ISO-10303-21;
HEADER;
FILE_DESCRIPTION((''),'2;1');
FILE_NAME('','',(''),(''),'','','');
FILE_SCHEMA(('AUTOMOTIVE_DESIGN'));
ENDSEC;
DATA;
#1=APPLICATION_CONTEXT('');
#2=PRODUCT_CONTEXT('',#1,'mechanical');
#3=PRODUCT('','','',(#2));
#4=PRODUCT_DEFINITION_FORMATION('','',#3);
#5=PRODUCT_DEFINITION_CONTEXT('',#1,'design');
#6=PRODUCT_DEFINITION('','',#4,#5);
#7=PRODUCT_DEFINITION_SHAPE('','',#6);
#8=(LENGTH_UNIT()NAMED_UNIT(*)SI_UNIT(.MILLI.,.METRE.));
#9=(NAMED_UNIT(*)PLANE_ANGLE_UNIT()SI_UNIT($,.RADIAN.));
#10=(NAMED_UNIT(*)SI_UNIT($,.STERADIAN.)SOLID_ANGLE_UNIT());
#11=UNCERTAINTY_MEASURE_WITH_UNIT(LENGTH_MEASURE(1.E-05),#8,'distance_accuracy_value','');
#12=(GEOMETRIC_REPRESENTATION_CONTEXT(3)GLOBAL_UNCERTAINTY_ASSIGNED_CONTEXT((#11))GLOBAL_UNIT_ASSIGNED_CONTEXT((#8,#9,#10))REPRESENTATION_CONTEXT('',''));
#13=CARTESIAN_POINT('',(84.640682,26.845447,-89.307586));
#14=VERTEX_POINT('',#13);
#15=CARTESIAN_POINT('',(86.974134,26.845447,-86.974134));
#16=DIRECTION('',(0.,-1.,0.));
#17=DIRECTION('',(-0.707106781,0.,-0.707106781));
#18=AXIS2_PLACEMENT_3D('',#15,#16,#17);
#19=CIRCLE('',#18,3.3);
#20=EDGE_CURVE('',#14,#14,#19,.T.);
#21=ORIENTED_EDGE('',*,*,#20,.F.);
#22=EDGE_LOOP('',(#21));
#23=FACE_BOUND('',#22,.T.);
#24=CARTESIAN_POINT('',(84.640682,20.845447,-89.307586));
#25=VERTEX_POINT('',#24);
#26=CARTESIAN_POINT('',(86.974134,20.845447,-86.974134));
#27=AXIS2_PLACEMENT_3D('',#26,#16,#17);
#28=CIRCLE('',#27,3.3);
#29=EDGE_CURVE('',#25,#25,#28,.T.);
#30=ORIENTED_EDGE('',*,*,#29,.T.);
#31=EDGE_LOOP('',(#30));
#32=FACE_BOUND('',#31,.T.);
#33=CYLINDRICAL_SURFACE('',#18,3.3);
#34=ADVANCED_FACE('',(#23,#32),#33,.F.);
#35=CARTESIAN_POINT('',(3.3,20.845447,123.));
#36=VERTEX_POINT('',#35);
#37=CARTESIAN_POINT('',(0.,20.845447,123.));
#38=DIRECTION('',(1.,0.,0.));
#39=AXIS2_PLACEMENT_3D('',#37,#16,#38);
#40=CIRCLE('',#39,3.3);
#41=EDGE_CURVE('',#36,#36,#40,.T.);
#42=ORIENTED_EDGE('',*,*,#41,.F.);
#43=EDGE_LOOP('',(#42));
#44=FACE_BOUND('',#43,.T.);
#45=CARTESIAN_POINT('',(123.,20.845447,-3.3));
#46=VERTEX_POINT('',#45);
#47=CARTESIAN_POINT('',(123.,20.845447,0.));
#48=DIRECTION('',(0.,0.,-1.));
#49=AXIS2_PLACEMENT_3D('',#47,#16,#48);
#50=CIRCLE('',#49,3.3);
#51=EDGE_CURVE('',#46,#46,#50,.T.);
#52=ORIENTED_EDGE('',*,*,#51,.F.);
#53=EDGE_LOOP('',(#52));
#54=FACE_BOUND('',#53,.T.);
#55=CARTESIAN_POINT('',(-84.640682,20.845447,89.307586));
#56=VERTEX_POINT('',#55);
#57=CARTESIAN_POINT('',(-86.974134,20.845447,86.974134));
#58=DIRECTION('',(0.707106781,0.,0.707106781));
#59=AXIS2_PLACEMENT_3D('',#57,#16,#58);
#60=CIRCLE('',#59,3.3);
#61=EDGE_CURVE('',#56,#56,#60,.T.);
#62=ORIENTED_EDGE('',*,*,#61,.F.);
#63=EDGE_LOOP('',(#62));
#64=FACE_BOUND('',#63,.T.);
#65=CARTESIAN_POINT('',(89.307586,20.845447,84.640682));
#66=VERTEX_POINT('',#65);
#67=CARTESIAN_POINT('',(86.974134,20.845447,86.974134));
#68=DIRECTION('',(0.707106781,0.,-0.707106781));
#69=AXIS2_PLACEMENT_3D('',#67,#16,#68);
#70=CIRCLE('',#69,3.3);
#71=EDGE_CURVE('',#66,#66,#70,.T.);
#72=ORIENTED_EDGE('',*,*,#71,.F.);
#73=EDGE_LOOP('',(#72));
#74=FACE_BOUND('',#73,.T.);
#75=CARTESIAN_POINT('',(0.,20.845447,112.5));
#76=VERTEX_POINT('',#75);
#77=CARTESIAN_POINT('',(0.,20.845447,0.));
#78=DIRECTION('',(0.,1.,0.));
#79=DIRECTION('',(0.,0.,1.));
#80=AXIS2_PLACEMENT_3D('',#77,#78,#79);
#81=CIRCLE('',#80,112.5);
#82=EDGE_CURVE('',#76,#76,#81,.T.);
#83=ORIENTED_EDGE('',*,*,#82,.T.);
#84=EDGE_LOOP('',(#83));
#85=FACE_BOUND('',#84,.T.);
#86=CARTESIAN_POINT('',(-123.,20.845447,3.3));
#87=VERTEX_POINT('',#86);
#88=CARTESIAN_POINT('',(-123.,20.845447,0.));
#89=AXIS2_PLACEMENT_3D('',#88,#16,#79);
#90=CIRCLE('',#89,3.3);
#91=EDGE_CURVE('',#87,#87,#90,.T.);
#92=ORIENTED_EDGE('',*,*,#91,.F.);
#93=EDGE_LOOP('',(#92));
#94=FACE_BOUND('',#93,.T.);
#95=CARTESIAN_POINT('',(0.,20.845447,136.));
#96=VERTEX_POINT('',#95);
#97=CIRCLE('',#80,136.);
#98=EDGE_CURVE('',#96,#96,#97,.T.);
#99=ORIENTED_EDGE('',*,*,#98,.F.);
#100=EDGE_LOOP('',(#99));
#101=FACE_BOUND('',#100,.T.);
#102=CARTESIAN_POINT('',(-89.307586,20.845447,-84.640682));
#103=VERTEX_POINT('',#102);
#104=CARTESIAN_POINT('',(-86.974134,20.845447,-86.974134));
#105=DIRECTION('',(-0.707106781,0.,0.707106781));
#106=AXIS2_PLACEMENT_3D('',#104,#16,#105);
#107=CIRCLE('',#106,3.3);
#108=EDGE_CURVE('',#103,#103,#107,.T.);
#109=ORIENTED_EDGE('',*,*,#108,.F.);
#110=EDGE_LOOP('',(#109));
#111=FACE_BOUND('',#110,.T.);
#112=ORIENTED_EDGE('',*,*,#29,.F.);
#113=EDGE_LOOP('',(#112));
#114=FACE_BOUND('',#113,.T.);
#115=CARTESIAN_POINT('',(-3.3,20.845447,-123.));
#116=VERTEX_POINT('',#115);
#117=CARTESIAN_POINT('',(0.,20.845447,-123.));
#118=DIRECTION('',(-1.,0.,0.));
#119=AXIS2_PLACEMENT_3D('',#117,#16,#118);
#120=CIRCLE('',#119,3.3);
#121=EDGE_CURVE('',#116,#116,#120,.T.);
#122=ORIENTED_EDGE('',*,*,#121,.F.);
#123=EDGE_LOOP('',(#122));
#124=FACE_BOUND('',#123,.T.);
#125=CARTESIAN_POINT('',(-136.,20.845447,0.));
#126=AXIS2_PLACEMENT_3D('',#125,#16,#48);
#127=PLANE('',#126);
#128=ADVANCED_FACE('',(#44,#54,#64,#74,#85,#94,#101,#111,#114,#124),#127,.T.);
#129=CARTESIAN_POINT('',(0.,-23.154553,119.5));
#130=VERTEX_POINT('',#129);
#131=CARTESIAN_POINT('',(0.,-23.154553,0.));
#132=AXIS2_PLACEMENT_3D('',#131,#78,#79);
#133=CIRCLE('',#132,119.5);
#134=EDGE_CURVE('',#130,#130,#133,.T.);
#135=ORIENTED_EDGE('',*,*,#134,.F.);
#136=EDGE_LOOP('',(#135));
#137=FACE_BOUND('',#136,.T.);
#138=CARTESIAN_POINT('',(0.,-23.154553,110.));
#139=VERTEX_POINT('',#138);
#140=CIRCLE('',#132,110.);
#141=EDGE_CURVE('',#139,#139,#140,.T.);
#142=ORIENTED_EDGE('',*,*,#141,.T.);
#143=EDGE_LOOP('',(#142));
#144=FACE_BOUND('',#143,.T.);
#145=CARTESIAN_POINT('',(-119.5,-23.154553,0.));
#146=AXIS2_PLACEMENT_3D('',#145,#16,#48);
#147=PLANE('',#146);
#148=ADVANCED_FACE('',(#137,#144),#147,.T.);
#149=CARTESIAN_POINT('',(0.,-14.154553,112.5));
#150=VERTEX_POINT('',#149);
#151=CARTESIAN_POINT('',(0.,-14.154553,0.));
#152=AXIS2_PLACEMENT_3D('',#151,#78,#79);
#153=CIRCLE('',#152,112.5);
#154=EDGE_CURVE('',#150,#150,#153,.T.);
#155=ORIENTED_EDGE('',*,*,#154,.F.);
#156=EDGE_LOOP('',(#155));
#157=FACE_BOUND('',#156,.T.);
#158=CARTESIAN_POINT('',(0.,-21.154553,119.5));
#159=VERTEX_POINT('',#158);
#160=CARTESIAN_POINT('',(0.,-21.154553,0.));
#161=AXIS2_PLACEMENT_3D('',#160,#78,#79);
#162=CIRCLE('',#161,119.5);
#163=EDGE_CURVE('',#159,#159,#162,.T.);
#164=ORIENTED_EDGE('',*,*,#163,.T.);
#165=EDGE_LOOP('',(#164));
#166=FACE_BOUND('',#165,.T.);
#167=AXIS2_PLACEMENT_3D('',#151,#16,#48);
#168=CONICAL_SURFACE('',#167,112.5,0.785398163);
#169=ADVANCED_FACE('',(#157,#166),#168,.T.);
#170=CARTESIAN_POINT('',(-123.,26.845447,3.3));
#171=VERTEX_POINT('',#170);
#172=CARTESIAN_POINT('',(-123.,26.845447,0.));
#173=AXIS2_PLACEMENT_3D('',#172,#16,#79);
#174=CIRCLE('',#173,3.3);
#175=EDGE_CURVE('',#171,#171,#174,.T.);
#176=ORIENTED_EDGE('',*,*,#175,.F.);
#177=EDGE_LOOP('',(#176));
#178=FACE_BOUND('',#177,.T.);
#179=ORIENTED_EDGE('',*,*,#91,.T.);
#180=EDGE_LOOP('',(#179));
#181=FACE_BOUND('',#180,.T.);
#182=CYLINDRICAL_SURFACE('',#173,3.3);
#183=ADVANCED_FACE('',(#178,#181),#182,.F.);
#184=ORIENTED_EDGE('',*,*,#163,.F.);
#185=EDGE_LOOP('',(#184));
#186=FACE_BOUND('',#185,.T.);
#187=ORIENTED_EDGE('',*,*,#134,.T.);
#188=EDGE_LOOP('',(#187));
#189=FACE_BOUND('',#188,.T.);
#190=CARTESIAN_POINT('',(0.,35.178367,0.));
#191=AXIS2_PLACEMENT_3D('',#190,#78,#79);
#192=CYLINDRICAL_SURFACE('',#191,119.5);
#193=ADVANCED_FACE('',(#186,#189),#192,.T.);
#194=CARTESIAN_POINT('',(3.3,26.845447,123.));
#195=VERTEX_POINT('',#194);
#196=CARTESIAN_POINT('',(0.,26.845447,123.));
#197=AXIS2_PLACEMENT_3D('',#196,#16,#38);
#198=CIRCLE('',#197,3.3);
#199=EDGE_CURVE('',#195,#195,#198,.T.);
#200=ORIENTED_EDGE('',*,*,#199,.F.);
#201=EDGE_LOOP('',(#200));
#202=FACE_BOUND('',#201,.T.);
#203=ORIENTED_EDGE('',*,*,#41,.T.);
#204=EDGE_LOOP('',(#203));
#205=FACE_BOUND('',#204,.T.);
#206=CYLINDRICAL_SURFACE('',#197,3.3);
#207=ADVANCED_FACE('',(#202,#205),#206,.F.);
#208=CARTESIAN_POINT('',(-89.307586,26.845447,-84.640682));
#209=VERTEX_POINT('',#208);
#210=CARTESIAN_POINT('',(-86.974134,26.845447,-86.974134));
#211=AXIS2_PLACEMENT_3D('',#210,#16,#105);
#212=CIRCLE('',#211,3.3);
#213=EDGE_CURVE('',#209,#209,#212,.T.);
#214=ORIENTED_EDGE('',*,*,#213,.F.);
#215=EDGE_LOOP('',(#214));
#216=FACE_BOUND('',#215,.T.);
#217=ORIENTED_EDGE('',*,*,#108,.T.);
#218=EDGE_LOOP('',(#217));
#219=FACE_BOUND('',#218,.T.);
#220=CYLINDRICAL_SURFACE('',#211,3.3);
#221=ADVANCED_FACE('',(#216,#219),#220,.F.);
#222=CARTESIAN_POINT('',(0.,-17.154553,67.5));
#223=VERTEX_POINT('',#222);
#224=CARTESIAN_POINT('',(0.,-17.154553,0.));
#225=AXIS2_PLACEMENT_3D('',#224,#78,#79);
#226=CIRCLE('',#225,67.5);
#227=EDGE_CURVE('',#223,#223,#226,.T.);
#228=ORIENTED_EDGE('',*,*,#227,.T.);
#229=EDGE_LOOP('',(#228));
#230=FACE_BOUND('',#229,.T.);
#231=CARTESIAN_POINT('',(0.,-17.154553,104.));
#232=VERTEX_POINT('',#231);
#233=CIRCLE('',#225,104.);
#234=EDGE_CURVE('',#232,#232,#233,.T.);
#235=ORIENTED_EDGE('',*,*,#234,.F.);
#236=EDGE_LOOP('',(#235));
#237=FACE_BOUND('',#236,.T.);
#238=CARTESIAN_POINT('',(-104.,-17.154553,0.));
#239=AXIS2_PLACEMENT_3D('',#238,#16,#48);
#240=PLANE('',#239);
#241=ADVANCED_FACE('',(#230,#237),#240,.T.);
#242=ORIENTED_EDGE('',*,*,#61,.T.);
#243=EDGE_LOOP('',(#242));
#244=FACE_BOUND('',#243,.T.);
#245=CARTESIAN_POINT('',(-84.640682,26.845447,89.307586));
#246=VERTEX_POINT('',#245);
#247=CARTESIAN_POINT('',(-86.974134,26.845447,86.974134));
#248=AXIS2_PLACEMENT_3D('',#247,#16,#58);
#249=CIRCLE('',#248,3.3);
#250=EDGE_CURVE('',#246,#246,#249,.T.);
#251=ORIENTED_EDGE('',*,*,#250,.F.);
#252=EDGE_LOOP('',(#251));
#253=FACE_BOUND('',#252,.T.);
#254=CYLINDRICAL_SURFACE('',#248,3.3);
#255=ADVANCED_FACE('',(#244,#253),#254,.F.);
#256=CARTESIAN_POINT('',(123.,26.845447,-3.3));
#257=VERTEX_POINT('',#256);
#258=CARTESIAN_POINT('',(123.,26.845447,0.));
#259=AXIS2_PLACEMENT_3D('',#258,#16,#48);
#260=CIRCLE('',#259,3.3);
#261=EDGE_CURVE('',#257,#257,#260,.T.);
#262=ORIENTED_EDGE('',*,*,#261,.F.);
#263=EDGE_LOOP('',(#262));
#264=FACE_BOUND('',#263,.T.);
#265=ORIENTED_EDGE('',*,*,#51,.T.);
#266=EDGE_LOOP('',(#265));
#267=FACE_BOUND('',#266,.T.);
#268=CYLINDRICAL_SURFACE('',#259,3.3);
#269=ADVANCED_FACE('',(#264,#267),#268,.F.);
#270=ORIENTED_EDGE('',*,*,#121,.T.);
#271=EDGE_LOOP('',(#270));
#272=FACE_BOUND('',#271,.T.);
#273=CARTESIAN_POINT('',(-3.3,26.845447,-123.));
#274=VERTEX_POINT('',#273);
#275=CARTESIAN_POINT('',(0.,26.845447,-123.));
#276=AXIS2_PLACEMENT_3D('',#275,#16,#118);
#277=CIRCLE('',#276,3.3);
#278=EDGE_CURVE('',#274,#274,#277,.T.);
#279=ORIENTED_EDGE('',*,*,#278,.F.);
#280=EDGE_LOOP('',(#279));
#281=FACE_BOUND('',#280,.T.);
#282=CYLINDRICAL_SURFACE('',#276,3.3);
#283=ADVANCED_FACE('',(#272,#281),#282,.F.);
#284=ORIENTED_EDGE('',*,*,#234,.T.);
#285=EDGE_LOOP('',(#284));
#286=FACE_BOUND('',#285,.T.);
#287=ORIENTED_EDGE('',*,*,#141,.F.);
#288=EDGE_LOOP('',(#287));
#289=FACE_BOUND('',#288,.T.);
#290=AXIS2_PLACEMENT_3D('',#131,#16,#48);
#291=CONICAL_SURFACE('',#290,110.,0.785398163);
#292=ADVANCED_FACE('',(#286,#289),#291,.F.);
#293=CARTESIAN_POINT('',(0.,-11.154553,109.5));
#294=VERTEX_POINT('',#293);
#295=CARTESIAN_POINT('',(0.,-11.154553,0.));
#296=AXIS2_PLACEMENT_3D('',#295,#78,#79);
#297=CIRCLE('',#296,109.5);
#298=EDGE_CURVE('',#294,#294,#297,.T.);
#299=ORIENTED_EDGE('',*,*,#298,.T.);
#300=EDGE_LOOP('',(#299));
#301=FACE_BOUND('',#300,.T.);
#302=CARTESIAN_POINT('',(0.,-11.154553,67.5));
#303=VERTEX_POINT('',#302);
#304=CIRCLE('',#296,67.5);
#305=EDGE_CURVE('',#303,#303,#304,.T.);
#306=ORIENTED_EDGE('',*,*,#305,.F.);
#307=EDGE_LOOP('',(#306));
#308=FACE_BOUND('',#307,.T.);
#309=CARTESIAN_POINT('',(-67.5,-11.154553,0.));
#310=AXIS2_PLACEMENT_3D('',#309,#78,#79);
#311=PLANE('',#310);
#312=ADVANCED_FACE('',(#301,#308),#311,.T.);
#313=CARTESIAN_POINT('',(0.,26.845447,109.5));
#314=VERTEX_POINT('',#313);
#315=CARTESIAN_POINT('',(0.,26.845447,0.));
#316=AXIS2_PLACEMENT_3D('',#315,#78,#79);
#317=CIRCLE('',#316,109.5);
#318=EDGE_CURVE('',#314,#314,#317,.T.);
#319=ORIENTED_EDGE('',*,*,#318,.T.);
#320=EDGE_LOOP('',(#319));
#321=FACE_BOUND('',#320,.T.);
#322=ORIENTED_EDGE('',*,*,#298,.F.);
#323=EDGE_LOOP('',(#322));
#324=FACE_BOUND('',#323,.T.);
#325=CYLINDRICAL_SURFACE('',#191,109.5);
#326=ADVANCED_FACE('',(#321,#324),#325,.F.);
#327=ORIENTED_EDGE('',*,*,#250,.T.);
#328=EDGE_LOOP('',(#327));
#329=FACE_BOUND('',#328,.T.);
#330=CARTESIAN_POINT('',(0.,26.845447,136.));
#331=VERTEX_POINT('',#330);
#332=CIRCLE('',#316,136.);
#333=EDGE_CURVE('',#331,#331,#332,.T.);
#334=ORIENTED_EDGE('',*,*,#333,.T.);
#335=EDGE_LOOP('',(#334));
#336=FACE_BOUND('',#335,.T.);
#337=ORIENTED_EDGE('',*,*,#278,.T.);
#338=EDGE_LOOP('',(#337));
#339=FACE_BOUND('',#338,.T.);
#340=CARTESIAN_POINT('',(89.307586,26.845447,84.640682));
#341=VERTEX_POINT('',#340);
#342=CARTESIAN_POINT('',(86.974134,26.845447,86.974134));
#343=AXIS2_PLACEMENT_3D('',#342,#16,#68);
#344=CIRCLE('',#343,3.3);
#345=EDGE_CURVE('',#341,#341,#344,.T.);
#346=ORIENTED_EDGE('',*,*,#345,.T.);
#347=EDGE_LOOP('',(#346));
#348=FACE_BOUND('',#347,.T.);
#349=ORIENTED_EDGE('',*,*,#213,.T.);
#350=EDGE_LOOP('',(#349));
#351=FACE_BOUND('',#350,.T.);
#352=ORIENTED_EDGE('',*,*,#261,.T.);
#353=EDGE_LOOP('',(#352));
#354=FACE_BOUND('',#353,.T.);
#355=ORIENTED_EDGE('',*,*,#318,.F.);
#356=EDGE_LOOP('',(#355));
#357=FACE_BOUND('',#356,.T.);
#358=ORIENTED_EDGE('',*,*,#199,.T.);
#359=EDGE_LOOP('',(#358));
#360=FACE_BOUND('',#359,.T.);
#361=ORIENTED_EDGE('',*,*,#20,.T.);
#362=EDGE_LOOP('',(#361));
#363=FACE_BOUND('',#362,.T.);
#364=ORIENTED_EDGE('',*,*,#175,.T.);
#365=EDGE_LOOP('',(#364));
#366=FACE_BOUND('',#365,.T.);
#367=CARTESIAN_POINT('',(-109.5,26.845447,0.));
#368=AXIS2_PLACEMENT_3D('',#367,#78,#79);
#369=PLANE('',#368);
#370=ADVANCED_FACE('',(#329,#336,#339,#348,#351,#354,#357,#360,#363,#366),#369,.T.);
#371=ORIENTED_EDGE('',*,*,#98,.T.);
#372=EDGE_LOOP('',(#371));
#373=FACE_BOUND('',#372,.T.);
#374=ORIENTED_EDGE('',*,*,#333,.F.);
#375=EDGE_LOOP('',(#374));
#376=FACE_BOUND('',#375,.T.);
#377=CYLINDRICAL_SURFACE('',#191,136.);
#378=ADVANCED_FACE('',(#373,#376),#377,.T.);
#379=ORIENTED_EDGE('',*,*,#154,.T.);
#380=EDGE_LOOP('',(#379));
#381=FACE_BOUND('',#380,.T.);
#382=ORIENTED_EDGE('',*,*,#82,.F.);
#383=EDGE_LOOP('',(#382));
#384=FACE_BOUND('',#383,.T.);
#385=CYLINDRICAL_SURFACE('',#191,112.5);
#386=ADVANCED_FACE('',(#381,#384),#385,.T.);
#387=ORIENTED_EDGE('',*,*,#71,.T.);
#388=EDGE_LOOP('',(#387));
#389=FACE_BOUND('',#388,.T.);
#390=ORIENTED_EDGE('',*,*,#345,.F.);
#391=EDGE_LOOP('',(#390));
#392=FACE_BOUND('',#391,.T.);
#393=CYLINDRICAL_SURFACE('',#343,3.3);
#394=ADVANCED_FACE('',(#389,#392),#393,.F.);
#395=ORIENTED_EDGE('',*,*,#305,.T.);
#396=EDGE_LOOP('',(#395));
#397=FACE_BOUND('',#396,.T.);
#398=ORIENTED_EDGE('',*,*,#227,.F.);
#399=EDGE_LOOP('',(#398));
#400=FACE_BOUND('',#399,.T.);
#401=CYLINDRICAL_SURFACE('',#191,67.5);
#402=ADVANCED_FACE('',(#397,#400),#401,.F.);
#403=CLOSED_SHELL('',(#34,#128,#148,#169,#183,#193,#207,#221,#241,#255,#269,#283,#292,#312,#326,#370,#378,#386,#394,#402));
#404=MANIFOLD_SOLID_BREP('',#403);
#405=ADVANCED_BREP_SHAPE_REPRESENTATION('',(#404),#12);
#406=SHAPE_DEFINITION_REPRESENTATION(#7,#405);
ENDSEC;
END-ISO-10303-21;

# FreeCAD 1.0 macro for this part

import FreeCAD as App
import Part
import Sketcher
Q = App.Units.Quantity

doc = App.newDocument("Part")
body = doc.addObject("PartDesign::Body", "Body")

sketch1 = doc.addObject("Sketcher::SketchObject", "Sketch")
body.addObject(sketch1)
sketch1.AttachmentSupport = (doc.XY_Plane, [""])
sketch1.MapMode = "FlatFace"
sketch1.addGeometry([
    Part.LineSegment(App.Vector(-109.5, 26.8, 0), App.Vector(-136, 26.8, 0)),
    Part.LineSegment(App.Vector(-136, 26.8, 0), App.Vector(-136, 20.8, 0)),
    Part.LineSegment(App.Vector(-136, 20.8, 0), App.Vector(-112.5, 20.8, 0)),
    Part.LineSegment(App.Vector(-112.5, 20.8, 0), App.Vector(-112.5, -14.2, 0)),
    Part.LineSegment(App.Vector(-112.5, -14.2, 0), App.Vector(-119.5, -21.2, 0)),
    Part.LineSegment(App.Vector(-119.5, -21.2, 0), App.Vector(-119.5, -23.2, 0)),
    Part.LineSegment(App.Vector(-119.5, -23.2, 0), App.Vector(-110, -23.2, 0)),
    Part.LineSegment(App.Vector(-110, -23.2, 0), App.Vector(-104, -17.2, 0)),
    Part.LineSegment(App.Vector(-104, -17.2, 0), App.Vector(-67.5, -17.2, 0)),
    Part.LineSegment(App.Vector(-67.5, -17.2, 0), App.Vector(-67.5, -11.2, 0)),
    Part.LineSegment(App.Vector(-67.5, -11.2, 0), App.Vector(-109.5, -11.2, 0)),
    Part.LineSegment(App.Vector(-109.5, -11.2, 0), App.Vector(-109.5, 26.8, 0)),
], False)
sketch1.addConstraint([
    Sketcher.Constraint("Coincident", 0, 2, 1, 1),
    Sketcher.Constraint("Coincident", 1, 2, 2, 1),
    Sketcher.Constraint("Coincident", 2, 2, 3, 1),
    Sketcher.Constraint("Coincident", 3, 2, 4, 1),
    Sketcher.Constraint("Coincident", 4, 2, 5, 1),
    Sketcher.Constraint("Coincident", 5, 2, 6, 1),
    Sketcher.Constraint("Coincident", 6, 2, 7, 1),
    Sketcher.Constraint("Coincident", 7, 2, 8, 1),
    Sketcher.Constraint("Coincident", 8, 2, 9, 1),
    Sketcher.Constraint("Coincident", 9, 2, 10, 1),
    Sketcher.Constraint("Coincident", 10, 2, 11, 1),
    Sketcher.Constraint("Coincident", 11, 2, 0, 1),
    Sketcher.Constraint("Horizontal", 0),
    Sketcher.Constraint("Vertical", 1),
    Sketcher.Constraint("Horizontal", 2),
    Sketcher.Constraint("Vertical", 3),
    Sketcher.Constraint("Vertical", 5),
    Sketcher.Constraint("Horizontal", 6),
    Sketcher.Constraint("Horizontal", 8),
    Sketcher.Constraint("Vertical", 9),
    Sketcher.Constraint("Horizontal", 10),
    Sketcher.Constraint("Vertical", 11),
    Sketcher.Constraint("Parallel", 4, 7),
    Sketcher.Constraint("Equal", 1, 9),
    Sketcher.Constraint("DistanceX", 10, 2, 10, 1, 42.0),
    Sketcher.Constraint("DistanceY", 1, 2, 1, 1, 6.0),
    Sketcher.Constraint("DistanceY", 3, 2, 3, 1, 35.0),
    Sketcher.Constraint("DistanceY", 5, 2, 5, 1, 2.0),
    Sketcher.Constraint("DistanceY", 11, 1, 11, 2, 38.0),
    Sketcher.Constraint("Angle", 4, Q("-135 deg")),
    Sketcher.Constraint("DistanceX", 0, 2, 0, 1, 26.5),
    Sketcher.Constraint("DistanceX", 2, 1, 2, 2, 23.5),
    Sketcher.Constraint("DistanceX", 6, 1, 6, 2, 9.5),
    Sketcher.Constraint("DistanceX", 0, 2, -1, 1, 136.0),
    Sketcher.Constraint("DistanceX", 6, 2, -1, 1, 110.0),
    Sketcher.Constraint("DistanceY", -1, 1, 0, 2, 26.845447),
])
revolution = doc.addObject("PartDesign::Revolution", "Revolution")
body.addObject(revolution)
revolution.Profile = sketch1
revolution.ReferenceAxis = (sketch1, ["V_Axis"])
revolution.Angle = 360

sketch2 = doc.addObject("Sketcher::SketchObject", "Sketch001")
body.addObject(sketch2)
sketch2.AttachmentSupport = (doc.XZ_Plane, [""])
sketch2.MapMode = "FlatFace"
sketch2.AttachmentOffset = App.Placement(App.Vector(0, 0, -20.845447), App.Rotation())
sketch2.addGeometry(Part.Circle(App.Vector(123, 0, 0), App.Vector(0, 0, 1), 3.3), False)
sketch2.addConstraint([
    Sketcher.Constraint("PointOnObject", 0, 3, -1),
    Sketcher.Constraint("Diameter", 0, 6.6),
    Sketcher.Constraint("DistanceX", -1, 1, 0, 3, 123.0),
])
pocket1 = doc.addObject("PartDesign::Pocket", "Pocket")
body.addObject(pocket1)
pocket1.Profile = sketch2
pocket1.Type = "ThroughAll"
doc.recompute()

polarpattern = doc.addObject("PartDesign::PolarPattern", "PolarPattern")
body.addObject(polarpattern)
polarpattern.Originals = [pocket1]
polarpattern.Axis = (doc.Y_Axis, [""])
polarpattern.Angle = 360
polarpattern.Occurrences = 8
body.Tip = polarpattern

doc.recompute()
